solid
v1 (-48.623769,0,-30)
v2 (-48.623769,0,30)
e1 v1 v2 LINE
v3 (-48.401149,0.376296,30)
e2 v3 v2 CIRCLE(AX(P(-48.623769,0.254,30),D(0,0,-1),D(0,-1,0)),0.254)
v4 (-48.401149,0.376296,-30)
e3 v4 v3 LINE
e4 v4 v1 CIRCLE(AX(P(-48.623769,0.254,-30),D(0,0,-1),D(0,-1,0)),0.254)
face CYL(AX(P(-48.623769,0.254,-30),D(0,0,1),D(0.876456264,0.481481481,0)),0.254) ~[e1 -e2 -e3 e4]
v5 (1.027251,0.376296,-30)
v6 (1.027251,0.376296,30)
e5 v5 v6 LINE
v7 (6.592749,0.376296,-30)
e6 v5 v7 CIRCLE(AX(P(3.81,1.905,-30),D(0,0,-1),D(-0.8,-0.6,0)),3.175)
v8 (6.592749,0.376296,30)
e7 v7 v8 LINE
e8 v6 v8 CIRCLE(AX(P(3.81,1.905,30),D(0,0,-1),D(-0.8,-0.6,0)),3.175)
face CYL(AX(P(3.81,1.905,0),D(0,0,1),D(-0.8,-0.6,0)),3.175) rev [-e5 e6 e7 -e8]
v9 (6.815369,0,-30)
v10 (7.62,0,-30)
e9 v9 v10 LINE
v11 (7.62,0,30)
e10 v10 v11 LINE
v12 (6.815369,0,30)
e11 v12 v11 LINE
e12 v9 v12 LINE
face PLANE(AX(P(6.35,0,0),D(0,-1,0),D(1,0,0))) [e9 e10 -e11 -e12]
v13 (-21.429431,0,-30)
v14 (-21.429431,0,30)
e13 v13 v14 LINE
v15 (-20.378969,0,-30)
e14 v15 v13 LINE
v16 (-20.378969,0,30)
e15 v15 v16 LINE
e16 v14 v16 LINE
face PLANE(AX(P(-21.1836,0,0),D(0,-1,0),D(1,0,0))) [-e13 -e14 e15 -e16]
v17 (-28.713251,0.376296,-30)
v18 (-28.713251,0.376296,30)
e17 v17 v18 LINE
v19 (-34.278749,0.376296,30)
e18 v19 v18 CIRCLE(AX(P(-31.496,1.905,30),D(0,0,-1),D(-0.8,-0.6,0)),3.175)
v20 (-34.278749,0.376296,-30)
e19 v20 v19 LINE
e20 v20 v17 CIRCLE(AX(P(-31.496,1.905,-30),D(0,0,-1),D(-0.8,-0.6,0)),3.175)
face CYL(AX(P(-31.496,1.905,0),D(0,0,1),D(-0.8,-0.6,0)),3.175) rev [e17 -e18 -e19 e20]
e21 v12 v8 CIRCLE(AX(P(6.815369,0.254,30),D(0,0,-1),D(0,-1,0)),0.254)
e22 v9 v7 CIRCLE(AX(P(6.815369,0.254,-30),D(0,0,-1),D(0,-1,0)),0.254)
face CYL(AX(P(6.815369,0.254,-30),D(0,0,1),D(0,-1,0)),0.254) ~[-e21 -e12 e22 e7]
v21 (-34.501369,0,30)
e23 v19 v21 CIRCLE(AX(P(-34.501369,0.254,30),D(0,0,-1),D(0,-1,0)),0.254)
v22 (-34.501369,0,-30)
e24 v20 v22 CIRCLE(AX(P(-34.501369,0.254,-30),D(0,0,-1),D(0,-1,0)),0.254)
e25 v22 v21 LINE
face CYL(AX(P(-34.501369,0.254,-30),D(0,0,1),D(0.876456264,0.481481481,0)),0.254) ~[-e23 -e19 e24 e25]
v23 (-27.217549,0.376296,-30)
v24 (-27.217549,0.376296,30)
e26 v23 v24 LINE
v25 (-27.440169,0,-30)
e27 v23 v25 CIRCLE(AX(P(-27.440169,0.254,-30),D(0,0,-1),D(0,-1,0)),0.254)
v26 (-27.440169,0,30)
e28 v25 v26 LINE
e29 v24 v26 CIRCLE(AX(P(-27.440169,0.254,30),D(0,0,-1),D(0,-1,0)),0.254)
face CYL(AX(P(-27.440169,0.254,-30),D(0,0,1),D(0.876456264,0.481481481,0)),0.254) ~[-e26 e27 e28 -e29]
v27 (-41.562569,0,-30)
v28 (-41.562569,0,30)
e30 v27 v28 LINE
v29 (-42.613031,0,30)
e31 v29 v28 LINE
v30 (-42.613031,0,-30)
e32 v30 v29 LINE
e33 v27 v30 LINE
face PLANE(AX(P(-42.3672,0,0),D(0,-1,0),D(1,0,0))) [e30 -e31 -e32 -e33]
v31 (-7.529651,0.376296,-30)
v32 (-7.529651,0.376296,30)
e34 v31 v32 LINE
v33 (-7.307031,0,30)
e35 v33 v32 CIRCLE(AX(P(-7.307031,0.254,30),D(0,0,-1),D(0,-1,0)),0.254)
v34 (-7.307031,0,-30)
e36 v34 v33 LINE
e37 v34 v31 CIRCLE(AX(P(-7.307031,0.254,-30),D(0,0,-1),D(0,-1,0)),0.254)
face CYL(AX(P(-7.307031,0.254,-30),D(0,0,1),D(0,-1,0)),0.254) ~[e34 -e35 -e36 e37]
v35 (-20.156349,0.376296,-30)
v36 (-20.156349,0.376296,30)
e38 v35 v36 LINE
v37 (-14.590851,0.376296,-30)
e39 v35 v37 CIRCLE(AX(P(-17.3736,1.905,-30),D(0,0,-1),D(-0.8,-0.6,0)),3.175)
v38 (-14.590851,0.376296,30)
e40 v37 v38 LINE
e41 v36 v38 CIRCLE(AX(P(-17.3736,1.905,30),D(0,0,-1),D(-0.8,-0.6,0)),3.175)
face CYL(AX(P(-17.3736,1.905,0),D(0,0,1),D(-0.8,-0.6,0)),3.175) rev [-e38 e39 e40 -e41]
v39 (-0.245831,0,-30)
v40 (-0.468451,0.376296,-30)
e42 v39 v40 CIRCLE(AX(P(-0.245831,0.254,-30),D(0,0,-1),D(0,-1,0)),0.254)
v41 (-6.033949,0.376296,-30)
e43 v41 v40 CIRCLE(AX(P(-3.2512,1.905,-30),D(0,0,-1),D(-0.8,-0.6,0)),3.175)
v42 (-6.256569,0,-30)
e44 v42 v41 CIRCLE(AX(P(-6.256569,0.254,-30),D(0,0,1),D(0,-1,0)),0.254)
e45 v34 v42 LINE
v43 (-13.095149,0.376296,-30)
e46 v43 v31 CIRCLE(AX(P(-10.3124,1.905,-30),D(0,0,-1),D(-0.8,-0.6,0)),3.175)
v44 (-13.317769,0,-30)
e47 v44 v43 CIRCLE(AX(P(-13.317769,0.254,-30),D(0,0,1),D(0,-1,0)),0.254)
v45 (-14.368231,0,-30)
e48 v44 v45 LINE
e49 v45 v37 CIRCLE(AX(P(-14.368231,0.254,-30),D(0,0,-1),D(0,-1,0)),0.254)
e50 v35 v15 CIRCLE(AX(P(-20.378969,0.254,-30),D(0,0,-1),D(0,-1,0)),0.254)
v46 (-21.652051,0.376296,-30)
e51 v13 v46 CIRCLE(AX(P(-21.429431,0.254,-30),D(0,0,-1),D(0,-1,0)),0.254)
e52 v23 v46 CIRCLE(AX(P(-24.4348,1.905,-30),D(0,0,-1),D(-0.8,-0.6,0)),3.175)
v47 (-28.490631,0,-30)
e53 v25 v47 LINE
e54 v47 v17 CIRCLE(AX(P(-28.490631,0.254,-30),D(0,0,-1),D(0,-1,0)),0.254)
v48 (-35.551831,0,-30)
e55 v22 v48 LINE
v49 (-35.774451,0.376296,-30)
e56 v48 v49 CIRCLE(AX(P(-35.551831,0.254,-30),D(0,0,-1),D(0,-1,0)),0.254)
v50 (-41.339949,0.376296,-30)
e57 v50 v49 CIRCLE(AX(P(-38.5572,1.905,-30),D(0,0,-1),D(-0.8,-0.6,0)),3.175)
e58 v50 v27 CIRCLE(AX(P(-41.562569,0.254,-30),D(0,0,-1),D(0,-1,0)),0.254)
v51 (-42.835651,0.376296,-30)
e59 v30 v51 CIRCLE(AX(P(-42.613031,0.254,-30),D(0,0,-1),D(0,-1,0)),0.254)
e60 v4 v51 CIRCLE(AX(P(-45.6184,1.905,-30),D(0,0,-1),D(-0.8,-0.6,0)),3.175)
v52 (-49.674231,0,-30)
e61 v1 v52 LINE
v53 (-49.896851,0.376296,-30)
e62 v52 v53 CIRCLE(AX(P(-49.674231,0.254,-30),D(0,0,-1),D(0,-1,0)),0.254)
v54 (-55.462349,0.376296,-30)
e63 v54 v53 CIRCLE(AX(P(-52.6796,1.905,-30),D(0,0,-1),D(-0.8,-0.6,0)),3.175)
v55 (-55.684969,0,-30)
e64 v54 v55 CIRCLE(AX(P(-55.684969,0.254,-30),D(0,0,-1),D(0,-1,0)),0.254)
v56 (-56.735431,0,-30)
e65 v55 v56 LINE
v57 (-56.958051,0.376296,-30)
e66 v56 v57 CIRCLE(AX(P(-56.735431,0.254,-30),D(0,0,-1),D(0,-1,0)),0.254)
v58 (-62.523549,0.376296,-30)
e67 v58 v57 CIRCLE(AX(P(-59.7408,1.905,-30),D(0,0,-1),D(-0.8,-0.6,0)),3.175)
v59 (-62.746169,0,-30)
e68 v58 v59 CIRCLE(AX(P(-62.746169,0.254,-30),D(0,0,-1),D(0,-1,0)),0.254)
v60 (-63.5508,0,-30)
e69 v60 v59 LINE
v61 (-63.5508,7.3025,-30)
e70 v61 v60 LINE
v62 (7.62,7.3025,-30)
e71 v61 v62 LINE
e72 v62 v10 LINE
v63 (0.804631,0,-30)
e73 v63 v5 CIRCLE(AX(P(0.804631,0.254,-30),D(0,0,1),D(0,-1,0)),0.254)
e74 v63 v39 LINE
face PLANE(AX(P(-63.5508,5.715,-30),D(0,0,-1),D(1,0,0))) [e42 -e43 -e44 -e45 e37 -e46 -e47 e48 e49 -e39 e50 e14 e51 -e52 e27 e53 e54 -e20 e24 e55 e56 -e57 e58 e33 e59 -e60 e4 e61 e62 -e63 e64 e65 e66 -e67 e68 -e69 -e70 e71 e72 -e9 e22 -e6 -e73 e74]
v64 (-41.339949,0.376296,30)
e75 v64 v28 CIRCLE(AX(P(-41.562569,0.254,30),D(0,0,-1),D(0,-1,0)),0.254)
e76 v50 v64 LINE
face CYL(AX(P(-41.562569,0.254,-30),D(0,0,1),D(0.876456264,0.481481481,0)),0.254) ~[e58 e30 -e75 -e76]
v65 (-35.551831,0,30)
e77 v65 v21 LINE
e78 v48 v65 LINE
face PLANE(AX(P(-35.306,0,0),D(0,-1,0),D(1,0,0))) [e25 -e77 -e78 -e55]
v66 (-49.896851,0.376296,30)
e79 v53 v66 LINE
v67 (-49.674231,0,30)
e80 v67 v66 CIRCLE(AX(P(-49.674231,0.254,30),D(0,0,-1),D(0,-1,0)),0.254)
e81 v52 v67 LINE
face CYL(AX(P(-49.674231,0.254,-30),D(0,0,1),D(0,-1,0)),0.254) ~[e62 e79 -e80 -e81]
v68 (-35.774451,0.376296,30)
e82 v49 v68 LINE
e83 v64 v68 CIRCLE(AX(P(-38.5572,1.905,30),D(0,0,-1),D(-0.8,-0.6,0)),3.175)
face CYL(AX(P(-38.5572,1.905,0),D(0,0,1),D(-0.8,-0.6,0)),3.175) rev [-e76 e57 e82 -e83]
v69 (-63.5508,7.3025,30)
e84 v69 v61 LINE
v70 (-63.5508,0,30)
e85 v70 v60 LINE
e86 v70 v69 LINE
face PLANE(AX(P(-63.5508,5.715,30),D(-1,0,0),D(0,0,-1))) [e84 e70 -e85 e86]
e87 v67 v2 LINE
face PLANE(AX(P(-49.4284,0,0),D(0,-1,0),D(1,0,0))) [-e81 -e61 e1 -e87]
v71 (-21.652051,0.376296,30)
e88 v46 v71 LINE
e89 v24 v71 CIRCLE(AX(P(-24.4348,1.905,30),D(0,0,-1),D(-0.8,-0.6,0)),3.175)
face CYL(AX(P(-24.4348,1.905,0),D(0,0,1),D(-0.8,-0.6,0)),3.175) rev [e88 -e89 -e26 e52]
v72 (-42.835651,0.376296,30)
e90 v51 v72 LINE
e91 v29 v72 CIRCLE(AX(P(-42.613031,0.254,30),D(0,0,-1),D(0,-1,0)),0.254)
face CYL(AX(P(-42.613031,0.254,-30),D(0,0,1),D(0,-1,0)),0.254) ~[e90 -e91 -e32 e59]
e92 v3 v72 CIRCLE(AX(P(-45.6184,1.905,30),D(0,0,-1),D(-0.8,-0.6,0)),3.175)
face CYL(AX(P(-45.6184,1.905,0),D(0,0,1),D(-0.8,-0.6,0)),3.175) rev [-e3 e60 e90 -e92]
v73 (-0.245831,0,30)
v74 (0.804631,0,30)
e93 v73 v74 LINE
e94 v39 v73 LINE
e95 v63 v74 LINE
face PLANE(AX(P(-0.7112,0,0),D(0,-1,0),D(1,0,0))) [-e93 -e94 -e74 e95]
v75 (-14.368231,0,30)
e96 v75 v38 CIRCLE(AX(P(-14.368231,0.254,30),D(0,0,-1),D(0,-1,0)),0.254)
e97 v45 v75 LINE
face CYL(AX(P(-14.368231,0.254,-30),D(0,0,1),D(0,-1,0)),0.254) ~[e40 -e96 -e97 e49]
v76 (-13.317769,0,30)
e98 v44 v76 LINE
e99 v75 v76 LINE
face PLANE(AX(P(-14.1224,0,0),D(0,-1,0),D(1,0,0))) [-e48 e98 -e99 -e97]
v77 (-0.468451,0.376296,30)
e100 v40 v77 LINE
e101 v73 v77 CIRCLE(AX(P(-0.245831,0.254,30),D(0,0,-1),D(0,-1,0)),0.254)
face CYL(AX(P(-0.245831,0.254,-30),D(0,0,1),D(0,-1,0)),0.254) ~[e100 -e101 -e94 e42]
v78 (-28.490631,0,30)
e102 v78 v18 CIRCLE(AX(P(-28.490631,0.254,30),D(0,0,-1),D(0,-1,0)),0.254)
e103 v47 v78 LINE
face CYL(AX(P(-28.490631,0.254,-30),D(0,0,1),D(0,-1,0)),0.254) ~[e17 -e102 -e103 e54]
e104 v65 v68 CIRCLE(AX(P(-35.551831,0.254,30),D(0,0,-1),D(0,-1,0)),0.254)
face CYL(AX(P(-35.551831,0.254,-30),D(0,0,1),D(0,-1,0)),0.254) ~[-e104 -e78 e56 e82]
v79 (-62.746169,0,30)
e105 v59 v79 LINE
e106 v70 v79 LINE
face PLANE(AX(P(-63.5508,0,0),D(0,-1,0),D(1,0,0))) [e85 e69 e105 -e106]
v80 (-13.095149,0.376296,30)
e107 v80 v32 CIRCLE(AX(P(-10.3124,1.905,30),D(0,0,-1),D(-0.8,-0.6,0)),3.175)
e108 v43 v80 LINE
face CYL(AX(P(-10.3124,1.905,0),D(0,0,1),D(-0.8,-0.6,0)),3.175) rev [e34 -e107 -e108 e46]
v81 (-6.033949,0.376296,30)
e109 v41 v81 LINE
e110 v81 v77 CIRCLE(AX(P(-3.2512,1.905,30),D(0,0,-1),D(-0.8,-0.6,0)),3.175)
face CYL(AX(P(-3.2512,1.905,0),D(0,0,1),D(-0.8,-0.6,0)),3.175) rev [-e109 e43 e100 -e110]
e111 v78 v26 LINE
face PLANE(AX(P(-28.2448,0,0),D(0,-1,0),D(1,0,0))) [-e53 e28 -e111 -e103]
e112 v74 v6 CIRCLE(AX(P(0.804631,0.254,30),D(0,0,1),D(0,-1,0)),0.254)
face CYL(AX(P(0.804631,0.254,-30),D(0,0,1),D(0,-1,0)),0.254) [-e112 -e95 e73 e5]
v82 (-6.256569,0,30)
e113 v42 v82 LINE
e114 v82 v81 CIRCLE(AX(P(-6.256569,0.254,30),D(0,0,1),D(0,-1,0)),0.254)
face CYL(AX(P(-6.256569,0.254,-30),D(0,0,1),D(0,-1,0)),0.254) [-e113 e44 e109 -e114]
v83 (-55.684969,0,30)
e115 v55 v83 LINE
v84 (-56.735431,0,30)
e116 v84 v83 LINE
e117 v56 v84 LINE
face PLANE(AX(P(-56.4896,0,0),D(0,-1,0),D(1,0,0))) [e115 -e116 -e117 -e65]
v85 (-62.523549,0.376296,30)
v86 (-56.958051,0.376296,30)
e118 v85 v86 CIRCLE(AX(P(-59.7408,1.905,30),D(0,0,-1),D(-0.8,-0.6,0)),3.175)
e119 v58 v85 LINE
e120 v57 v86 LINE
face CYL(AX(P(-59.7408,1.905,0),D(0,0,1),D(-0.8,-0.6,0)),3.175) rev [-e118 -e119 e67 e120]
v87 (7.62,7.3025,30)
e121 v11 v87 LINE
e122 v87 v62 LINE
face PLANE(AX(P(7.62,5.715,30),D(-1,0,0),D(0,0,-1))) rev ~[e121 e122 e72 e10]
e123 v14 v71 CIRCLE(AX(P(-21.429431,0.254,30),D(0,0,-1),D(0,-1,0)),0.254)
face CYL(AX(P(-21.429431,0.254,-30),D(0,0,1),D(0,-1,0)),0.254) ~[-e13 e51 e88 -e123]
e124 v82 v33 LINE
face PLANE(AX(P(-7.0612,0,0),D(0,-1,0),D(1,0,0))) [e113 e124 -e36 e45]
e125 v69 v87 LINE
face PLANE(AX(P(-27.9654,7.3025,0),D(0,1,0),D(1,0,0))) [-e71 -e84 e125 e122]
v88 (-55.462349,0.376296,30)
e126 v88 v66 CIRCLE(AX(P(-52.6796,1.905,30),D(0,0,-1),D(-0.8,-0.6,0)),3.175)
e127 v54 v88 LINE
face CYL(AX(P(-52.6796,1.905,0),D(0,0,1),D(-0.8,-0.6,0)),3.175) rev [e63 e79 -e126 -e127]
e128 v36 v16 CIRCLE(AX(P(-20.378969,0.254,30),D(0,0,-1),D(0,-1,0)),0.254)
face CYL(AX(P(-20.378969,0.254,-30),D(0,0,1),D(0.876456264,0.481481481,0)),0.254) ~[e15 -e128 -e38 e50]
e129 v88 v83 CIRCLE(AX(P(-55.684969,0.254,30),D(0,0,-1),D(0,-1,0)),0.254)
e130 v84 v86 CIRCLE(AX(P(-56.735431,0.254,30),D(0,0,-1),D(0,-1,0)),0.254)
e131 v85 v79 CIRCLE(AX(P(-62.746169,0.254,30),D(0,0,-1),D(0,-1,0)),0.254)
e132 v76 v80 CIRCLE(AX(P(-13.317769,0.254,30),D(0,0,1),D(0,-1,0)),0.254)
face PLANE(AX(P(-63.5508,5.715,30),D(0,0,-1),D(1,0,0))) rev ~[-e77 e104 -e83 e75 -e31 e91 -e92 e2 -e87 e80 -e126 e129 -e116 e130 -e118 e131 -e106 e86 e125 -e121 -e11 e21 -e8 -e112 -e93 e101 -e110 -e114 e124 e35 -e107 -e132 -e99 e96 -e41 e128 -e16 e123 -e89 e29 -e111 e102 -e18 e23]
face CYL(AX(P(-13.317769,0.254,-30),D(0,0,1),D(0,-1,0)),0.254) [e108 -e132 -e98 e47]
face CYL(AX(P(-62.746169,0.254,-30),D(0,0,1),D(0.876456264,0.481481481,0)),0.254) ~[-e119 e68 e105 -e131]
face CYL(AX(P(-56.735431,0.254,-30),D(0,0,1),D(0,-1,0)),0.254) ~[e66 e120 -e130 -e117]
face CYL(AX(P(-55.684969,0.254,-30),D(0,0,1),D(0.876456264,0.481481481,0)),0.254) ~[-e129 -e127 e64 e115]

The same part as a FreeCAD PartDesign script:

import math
import FreeCAD as App
import Part
import Sketcher
from FreeCAD import Vector
Q = App.Units.Quantity


def edges_at(feature, points):
    """Names of the edges that pass closest to the given points."""
    edges = feature.Shape.Edges
    near = lambda p: min(range(len(edges)), key=lambda i: edges[i].distToShape(Part.Vertex(*p))[0])
    return sorted({f"Edge{near(p) + 1}" for p in points})

doc = App.newDocument("Part")
body = doc.addObject("PartDesign::Body", "Body")

sketch1 = body.newObject("Sketcher::SketchObject", "Sketch")
sketch1.AttachmentSupport = (doc.getObject("XY_Plane"), [""])
sketch1.MapMode = "FlatFace"
sketch1.addGeometry(Part.LineSegment(Vector(0, 0, 0), Vector(1.3, 0, 0)), False)
sketch1.addGeometry(Part.ArcOfCircle(Part.Circle(Vector(3.8, 1.9, 0), Vector(0, 0, 1), 3.2), math.radians(-37), math.radians(217)), False)
sketch1.addGeometry(Part.LineSegment(Vector(6.3, 0, 0), Vector(7.6, 0, 0)), False)
sketch1.addGeometry(Part.LineSegment(Vector(7.6, 0, 0), Vector(7.6, 5.7, 0)), False)
sketch1.addGeometry(Part.LineSegment(Vector(7.6, 5.7, 0), Vector(0, 5.7, 0)), False)
sketch1.addGeometry(Part.LineSegment(Vector(0, 5.7, 0), Vector(0, 0, 0)), False)
sketch1.addConstraint(Sketcher.Constraint("Coincident", 0, 2, 1, 2))
sketch1.addConstraint(Sketcher.Constraint("Coincident", 1, 1, 2, 1))
sketch1.addConstraint(Sketcher.Constraint("Coincident", 2, 2, 3, 1))
sketch1.addConstraint(Sketcher.Constraint("Coincident", 3, 2, 4, 1))
sketch1.addConstraint(Sketcher.Constraint("Coincident", 4, 2, 5, 1))
sketch1.addConstraint(Sketcher.Constraint("Coincident", 5, 2, 0, 1))
sketch1.addConstraint(Sketcher.Constraint("Horizontal", 0))
sketch1.addConstraint(Sketcher.Constraint("Horizontal", 2))
sketch1.addConstraint(Sketcher.Constraint("Vertical", 3))
sketch1.addConstraint(Sketcher.Constraint("Horizontal", 4))
sketch1.addConstraint(Sketcher.Constraint("Vertical", 5))
sketch1.addConstraint(Sketcher.Constraint("Coincident", 5, 2, -1, 1))
sketch1.addConstraint(Sketcher.Constraint("PointOnObject", 1, 1, -1))
sketch1.addConstraint(Sketcher.Constraint("Equal", 0, 2))
sketch1.addConstraint(Sketcher.Constraint("DistanceX", 4, 2, 4, 1, Q("0.3 in")))
sketch1.addConstraint(Sketcher.Constraint("Radius", 1, Q("0.125 in")))
sketch1.addConstraint(Sketcher.Constraint("DistanceX", 0, 1, 0, 2, Q("0.05 in")))
sketch1.addConstraint(Sketcher.Constraint("DistanceY", 3, 1, 3, 2, Q("0.225 in")))
pad1 = body.newObject("PartDesign::Pad", "Pad")
pad1.Profile = sketch1
pad1.Length = 60
pad1.Midplane = True
doc.recompute()

fillet = body.newObject("PartDesign::Fillet", "Fillet")
fillet.Base = (pad1, edges_at(pad1, [(6.35, 0, 0), (1.27, 0, 0)]))
fillet.Radius = Q("0.01 in")
doc.recompute()

linearpattern = body.newObject("PartDesign::LinearPattern", "LinearPattern")
linearpattern.Originals = [pad1]
linearpattern.Direction = (doc.getObject("X_Axis"), [""])
linearpattern.Mode = "offset"
linearpattern.Offset = Q("0.278 in")
linearpattern.Occurrences = 10
linearpattern.Reversed = True
body.Tip = linearpattern
doc.recompute()

fillet2 = body.newObject("PartDesign::Fillet", "Fillet001")
fillet2.Base = (linearpattern, edges_at(linearpattern, [
    (-0.711, 0, 0),
    (-5.791, 0, 0),
    (-7.772, 0, 0),
    (-12.852, 0, 0),
    (-14.834, 0, 0),
    (-19.914, 0, 0),
    (-21.895, 0, 0),
    (-26.975, 0, 0),
    (-28.956, 0, 0),
    (-34.036, 0, 0),
    (-36.017, 0, 0),
    (-41.097, 0, 0),
    (-43.078, 0, 0),
    (-48.158, 0, 0),
    (-50.14, 0, 0),
    (-55.22, 0, 0),
    (-57.201, 0, 0),
    (-62.281, 0, 0),
]))
fillet2.Radius = Q("0.01 in")

sketch2 = body.newObject("Sketcher::SketchObject", "Sketch001")
sketch2.AttachmentSupport = (doc.getObject("XZ_Plane"), [""])
sketch2.MapMode = "FlatFace"
sketch2.AttachmentOffset = App.Placement(Vector(0, 0, -0.225 * 25.4), App.Rotation())
sketch2.addGeometry(Part.LineSegment(Vector(-64, -30, 0), Vector(-64, 30, 0)), False)
sketch2.addGeometry(Part.LineSegment(Vector(-64, 30, 0), Vector(8, 30, 0)), False)
sketch2.addGeometry(Part.LineSegment(Vector(8, 30, 0), Vector(8, -30, 0)), False)
sketch2.addGeometry(Part.LineSegment(Vector(8, -30, 0), Vector(-64, -30, 0)), False)
sketch2.addConstraint(Sketcher.Constraint("Coincident", 0, 2, 1, 1))
sketch2.addConstraint(Sketcher.Constraint("Coincident", 1, 2, 2, 1))
sketch2.addConstraint(Sketcher.Constraint("Coincident", 2, 2, 3, 1))
sketch2.addConstraint(Sketcher.Constraint("Coincident", 3, 2, 0, 1))
sketch2.addConstraint(Sketcher.Constraint("Vertical", 0))
sketch2.addConstraint(Sketcher.Constraint("Horizontal", 1))
sketch2.addConstraint(Sketcher.Constraint("Vertical", 2))
sketch2.addConstraint(Sketcher.Constraint("Horizontal", 3))
sketch2.addConstraint(Sketcher.Constraint("DistanceX", -1, 1, 1, 2, Q("0.3 in")))
sketch2.addConstraint(Sketcher.Constraint("DistanceX", 1, 1, 1, 2, Q("2.802 in")))
sketch2.addConstraint(Sketcher.Constraint("DistanceY", 0, 1, 0, 2, Q("60 mm")))
sketch2.addConstraint(Sketcher.Constraint("DistanceY", -1, 1, 0, 2, Q("30 mm")))
pad2 = body.newObject("PartDesign::Pad", "Pad001")
pad2.Profile = sketch2
pad2.Length = Q("0.0625 in")
pad2.Reversed = True

doc.recompute()
